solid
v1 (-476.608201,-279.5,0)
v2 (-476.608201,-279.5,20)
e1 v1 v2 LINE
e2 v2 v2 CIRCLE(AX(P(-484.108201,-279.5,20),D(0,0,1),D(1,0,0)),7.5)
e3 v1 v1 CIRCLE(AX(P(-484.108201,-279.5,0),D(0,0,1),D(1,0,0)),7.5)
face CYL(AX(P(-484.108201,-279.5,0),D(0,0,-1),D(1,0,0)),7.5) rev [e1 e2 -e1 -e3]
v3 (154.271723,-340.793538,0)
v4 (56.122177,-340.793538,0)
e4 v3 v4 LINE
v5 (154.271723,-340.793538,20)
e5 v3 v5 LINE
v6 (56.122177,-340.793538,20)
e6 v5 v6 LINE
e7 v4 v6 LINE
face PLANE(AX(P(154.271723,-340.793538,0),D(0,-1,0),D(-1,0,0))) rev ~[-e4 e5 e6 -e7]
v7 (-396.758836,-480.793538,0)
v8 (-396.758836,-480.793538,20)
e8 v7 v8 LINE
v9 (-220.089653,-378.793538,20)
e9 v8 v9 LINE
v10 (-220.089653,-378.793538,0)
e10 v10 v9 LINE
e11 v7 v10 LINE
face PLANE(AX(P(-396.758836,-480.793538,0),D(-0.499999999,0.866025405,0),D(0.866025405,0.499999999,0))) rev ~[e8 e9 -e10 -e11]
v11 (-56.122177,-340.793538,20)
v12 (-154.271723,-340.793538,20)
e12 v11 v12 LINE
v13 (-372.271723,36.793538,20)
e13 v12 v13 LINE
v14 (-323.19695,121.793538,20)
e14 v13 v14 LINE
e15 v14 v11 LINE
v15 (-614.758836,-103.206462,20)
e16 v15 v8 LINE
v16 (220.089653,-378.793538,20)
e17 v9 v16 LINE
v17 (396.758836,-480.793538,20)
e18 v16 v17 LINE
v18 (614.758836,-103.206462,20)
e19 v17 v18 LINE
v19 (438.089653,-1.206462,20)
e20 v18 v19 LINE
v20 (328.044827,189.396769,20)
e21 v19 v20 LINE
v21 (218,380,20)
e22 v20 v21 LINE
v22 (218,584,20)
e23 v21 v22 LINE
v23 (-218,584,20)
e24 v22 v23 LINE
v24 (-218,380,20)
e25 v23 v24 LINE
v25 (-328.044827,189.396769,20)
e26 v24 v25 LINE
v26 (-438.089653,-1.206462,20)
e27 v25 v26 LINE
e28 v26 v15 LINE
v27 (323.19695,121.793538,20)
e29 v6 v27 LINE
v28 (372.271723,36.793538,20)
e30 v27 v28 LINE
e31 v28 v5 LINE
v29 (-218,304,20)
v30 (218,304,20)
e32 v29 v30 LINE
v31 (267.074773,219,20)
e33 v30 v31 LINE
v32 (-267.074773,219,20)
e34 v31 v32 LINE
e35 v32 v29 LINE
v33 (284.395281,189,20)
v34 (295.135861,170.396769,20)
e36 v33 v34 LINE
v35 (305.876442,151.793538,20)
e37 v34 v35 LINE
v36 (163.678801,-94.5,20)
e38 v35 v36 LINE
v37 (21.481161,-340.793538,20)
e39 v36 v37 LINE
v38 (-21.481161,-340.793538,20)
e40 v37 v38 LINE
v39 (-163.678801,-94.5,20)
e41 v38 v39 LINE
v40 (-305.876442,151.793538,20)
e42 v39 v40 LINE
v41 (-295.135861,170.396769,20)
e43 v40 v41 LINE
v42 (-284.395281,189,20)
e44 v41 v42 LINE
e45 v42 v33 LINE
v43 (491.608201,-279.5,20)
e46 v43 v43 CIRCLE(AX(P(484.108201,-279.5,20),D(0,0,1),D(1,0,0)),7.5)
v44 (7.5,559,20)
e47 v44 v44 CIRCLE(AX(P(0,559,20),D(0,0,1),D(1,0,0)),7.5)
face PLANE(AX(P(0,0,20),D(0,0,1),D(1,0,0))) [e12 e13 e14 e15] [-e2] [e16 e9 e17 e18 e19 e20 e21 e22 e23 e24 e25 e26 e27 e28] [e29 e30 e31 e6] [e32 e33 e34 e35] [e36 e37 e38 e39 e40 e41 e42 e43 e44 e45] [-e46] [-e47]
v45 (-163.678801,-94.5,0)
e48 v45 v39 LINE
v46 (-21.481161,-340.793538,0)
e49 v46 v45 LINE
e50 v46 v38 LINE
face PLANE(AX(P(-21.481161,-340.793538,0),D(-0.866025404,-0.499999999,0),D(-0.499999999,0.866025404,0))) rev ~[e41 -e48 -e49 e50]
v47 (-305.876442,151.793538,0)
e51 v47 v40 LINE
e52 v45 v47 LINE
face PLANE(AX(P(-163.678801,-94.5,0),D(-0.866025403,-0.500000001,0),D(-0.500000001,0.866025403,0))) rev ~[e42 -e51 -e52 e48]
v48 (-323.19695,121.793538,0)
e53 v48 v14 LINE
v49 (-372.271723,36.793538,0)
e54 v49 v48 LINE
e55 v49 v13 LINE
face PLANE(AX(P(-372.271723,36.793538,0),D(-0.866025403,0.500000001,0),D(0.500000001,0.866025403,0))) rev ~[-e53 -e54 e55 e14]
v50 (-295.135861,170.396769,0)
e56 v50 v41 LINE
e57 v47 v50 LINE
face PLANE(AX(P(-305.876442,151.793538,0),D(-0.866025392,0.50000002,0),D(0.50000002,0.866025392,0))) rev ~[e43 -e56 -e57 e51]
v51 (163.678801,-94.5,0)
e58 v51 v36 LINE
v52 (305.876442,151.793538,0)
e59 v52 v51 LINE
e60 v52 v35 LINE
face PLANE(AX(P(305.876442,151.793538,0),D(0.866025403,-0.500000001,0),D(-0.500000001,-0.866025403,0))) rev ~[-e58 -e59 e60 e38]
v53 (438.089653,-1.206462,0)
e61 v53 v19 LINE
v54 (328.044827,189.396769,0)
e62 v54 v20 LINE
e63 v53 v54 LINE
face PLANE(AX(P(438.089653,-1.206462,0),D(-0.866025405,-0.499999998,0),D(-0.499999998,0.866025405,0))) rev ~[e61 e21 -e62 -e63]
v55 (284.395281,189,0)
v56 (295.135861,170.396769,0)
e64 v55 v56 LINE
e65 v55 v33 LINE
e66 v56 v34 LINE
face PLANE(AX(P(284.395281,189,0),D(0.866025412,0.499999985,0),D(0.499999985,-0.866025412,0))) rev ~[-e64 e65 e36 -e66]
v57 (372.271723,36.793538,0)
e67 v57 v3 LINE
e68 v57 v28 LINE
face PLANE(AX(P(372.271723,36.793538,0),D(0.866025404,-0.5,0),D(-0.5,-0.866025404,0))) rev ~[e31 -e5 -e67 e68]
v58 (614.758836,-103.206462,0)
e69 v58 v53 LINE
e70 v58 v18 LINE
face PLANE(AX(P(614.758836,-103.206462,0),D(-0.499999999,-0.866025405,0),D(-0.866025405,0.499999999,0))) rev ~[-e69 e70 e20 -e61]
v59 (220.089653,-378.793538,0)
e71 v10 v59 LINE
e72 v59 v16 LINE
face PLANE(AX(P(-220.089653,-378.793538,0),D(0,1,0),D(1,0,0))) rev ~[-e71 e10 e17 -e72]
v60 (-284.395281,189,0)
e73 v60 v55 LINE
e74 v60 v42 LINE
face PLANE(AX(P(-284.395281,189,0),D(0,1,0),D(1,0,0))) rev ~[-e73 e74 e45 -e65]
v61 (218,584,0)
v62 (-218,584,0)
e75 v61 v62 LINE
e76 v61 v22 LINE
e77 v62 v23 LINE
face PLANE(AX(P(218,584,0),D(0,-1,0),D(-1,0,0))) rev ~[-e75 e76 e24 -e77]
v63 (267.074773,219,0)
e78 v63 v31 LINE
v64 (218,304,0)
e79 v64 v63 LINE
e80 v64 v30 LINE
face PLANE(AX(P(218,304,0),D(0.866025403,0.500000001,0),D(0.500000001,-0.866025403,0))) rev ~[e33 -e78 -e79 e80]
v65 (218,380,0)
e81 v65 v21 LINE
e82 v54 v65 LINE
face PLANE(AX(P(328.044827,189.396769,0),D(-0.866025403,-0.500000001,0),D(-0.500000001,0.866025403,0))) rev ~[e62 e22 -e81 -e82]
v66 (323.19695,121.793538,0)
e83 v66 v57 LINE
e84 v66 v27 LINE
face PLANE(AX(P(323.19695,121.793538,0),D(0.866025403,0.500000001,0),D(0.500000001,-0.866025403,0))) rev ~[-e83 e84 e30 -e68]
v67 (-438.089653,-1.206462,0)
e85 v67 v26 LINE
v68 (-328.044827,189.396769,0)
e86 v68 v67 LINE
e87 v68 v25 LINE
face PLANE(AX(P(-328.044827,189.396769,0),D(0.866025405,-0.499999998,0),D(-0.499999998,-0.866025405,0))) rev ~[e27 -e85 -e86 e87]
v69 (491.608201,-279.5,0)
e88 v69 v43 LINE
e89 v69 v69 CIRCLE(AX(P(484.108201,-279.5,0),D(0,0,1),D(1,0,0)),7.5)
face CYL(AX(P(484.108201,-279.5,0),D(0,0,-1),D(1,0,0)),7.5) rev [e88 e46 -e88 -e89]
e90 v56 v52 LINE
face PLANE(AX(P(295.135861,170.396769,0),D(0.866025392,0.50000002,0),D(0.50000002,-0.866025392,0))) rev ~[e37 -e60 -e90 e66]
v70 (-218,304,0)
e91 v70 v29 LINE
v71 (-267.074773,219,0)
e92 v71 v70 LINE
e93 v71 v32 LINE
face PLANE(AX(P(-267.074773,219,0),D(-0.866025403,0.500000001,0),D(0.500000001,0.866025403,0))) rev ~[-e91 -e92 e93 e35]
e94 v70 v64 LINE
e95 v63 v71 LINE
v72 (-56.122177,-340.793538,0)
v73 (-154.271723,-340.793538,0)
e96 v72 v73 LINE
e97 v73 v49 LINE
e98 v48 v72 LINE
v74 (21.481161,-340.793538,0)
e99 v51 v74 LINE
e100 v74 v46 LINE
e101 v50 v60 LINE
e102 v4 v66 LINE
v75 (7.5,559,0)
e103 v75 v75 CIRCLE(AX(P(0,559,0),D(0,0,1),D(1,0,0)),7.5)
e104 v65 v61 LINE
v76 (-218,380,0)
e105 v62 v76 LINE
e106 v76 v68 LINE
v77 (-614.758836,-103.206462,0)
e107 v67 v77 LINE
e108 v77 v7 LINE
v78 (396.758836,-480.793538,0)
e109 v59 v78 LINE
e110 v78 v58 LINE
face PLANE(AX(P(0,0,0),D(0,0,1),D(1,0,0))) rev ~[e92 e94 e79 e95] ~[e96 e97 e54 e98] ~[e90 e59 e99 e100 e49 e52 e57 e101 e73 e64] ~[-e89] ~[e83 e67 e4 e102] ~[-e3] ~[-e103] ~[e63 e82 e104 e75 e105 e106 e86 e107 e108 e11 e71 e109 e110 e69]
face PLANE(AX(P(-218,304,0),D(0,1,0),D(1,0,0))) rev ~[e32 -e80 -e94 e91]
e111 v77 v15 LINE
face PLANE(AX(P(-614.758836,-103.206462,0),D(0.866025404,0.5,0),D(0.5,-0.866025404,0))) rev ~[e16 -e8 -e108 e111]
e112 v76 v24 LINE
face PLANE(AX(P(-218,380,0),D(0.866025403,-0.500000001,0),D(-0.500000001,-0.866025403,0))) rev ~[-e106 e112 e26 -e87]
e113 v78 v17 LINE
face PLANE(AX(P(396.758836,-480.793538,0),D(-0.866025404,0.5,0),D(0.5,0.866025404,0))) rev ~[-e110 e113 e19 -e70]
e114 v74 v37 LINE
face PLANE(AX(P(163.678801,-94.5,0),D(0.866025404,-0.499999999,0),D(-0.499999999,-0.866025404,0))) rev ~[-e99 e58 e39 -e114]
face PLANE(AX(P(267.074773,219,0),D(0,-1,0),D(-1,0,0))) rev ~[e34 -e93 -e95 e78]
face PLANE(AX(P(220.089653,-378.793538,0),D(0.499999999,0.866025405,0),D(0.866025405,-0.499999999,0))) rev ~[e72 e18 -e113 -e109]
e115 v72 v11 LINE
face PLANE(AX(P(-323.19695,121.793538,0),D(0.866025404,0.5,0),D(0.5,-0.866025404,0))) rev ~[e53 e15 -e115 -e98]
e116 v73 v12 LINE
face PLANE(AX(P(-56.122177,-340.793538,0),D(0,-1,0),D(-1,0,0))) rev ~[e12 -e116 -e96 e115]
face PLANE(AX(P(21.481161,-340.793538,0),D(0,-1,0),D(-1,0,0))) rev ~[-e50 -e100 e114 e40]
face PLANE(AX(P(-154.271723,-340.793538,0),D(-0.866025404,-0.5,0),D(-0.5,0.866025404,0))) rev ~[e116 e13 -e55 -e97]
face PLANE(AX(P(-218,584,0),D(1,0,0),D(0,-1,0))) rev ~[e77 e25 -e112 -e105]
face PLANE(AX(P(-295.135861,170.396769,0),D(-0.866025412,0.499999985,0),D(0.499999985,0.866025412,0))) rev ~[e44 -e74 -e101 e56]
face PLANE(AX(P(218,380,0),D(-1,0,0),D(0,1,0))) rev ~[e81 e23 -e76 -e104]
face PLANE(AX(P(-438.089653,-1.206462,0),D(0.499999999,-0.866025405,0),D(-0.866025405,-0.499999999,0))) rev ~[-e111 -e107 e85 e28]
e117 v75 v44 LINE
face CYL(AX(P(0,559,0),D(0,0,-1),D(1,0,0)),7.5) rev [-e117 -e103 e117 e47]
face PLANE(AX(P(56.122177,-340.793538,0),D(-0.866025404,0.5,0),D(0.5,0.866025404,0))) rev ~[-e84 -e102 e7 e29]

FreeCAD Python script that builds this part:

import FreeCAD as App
import Part
import Sketcher
Q = App.Units.Quantity

doc = App.newDocument("Part")
body = doc.addObject("PartDesign::Body", "Body")

sketch1 = doc.addObject("Sketcher::SketchObject", "Sketch")
body.addObject(sketch1)
sketch1.AttachmentSupport = (doc.XY_Plane, [""])
sketch1.MapMode = "FlatFace"
sketch1.addGeometry([
    Part.LineSegment(App.Vector(218, 380, 0), App.Vector(218, 584, 0)),
    Part.LineSegment(App.Vector(218, 584, 0), App.Vector(-218, 584, 0)),
    Part.LineSegment(App.Vector(-218, 584, 0), App.Vector(-218, 380, 0)),
    Part.LineSegment(App.Vector(-218, 380, 0), App.Vector(-328.044827, 189.396769, 0)),
    Part.LineSegment(App.Vector(-328.044827, 189.396769, 0), App.Vector(-438.089653, -1.206462, 0)),
    Part.LineSegment(App.Vector(-438.089653, -1.206462, 0), App.Vector(-614.758836, -103.206462, 0)),
    Part.LineSegment(App.Vector(-614.758836, -103.206462, 0), App.Vector(-396.758836, -480.793538, 0)),
    Part.LineSegment(App.Vector(-396.758836, -480.793538, 0), App.Vector(-220.089653, -378.793538, 0)),
    Part.LineSegment(App.Vector(-220.089653, -378.793538, 0), App.Vector(220.089653, -378.793538, 0)),
    Part.LineSegment(App.Vector(220.089653, -378.793538, 0), App.Vector(396.758836, -480.793538, 0)),
    Part.LineSegment(App.Vector(396.758836, -480.793538, 0), App.Vector(614.758836, -103.206462, 0)),
    Part.LineSegment(App.Vector(614.758836, -103.206462, 0), App.Vector(438.089653, -1.206462, 0)),
    Part.LineSegment(App.Vector(438.089653, -1.206462, 0), App.Vector(328.044827, 189.396769, 0)),
    Part.LineSegment(App.Vector(328.044827, 189.396769, 0), App.Vector(218, 380, 0)),
    Part.Circle(App.Vector(-484.108201, -279.5, 0), App.Vector(0, 0, 1), 7.5),
    Part.LineSegment(App.Vector(-154.271723, -340.793538, 0), App.Vector(-372.271723, 36.793538, 0)),
    Part.LineSegment(App.Vector(-372.271723, 36.793538, 0), App.Vector(-323.19695, 121.793538, 0)),
    Part.LineSegment(App.Vector(-323.19695, 121.793538, 0), App.Vector(-56.122177, -340.793538, 0)),
    Part.LineSegment(App.Vector(-56.122177, -340.793538, 0), App.Vector(-154.271723, -340.793538, 0)),
    Part.LineSegment(App.Vector(-305.876442, 151.793538, 0), App.Vector(-295.135861, 170.396769, 0)),
    Part.LineSegment(App.Vector(-295.135861, 170.396769, 0), App.Vector(-284.395281, 189, 0)),
    Part.LineSegment(App.Vector(-284.395281, 189, 0), App.Vector(284.395281, 189, 0)),
    Part.LineSegment(App.Vector(284.395281, 189, 0), App.Vector(295.135861, 170.396769, 0)),
    Part.LineSegment(App.Vector(295.135861, 170.396769, 0), App.Vector(305.876442, 151.793538, 0)),
    Part.LineSegment(App.Vector(305.876442, 151.793538, 0), App.Vector(163.678801, -94.5, 0)),
    Part.LineSegment(App.Vector(163.678801, -94.5, 0), App.Vector(21.481161, -340.793538, 0)),
    Part.LineSegment(App.Vector(21.481161, -340.793538, 0), App.Vector(-21.481161, -340.793538, 0)),
    Part.LineSegment(App.Vector(-21.481161, -340.793538, 0), App.Vector(-163.678801, -94.5, 0)),
    Part.LineSegment(App.Vector(-163.678801, -94.5, 0), App.Vector(-305.876442, 151.793538, 0)),
    Part.Circle(App.Vector(484.108201, -279.5, 0), App.Vector(0, 0, 1), 7.5),
    Part.LineSegment(App.Vector(372.271723, 36.793538, 0), App.Vector(154.271723, -340.793538, 0)),
    Part.LineSegment(App.Vector(154.271723, -340.793538, 0), App.Vector(56.122177, -340.793538, 0)),
    Part.LineSegment(App.Vector(56.122177, -340.793538, 0), App.Vector(323.19695, 121.793538, 0)),
    Part.LineSegment(App.Vector(323.19695, 121.793538, 0), App.Vector(372.271723, 36.793538, 0)),
    Part.LineSegment(App.Vector(-267.074773, 219, 0), App.Vector(-218, 304, 0)),
    Part.LineSegment(App.Vector(-218, 304, 0), App.Vector(218, 304, 0)),
    Part.LineSegment(App.Vector(218, 304, 0), App.Vector(267.074773, 219, 0)),
    Part.LineSegment(App.Vector(267.074773, 219, 0), App.Vector(-267.074773, 219, 0)),
    Part.Circle(App.Vector(0, 559, 0), App.Vector(0, 0, 1), 7.5),
], False)
sketch1.addConstraint([
    Sketcher.Constraint("Coincident", 0, 2, 1, 1),
    Sketcher.Constraint("Coincident", 1, 2, 2, 1),
    Sketcher.Constraint("Coincident", 2, 2, 3, 1),
    Sketcher.Constraint("Coincident", 3, 2, 4, 1),
    Sketcher.Constraint("Coincident", 4, 2, 5, 1),
    Sketcher.Constraint("Coincident", 5, 2, 6, 1),
    Sketcher.Constraint("Coincident", 6, 2, 7, 1),
    Sketcher.Constraint("Coincident", 7, 2, 8, 1),
    Sketcher.Constraint("Coincident", 8, 2, 9, 1),
    Sketcher.Constraint("Coincident", 9, 2, 10, 1),
    Sketcher.Constraint("Coincident", 10, 2, 11, 1),
    Sketcher.Constraint("Coincident", 11, 2, 12, 1),
    Sketcher.Constraint("Coincident", 12, 2, 13, 1),
    Sketcher.Constraint("Coincident", 13, 2, 0, 1),
    Sketcher.Constraint("Coincident", 15, 2, 16, 1),
    Sketcher.Constraint("Coincident", 16, 2, 17, 1),
    Sketcher.Constraint("Coincident", 17, 2, 18, 1),
    Sketcher.Constraint("Coincident", 18, 2, 15, 1),
    Sketcher.Constraint("Coincident", 19, 2, 20, 1),
    Sketcher.Constraint("Coincident", 20, 2, 21, 1),
    Sketcher.Constraint("Coincident", 21, 2, 22, 1),
    Sketcher.Constraint("Coincident", 22, 2, 23, 1),
    Sketcher.Constraint("Coincident", 23, 2, 24, 1),
    Sketcher.Constraint("Coincident", 24, 2, 25, 1),
    Sketcher.Constraint("Coincident", 25, 2, 26, 1),
    Sketcher.Constraint("Coincident", 26, 2, 27, 1),
    Sketcher.Constraint("Coincident", 27, 2, 28, 1),
    Sketcher.Constraint("Coincident", 28, 2, 19, 1),
    Sketcher.Constraint("Coincident", 30, 2, 31, 1),
    Sketcher.Constraint("Coincident", 31, 2, 32, 1),
    Sketcher.Constraint("Coincident", 32, 2, 33, 1),
    Sketcher.Constraint("Coincident", 33, 2, 30, 1),
    Sketcher.Constraint("Coincident", 34, 2, 35, 1),
    Sketcher.Constraint("Coincident", 35, 2, 36, 1),
    Sketcher.Constraint("Coincident", 36, 2, 37, 1),
    Sketcher.Constraint("Coincident", 37, 2, 34, 1),
    Sketcher.Constraint("Vertical", 0),
    Sketcher.Constraint("Horizontal", 1),
    Sketcher.Constraint("Vertical", 2),
    Sketcher.Constraint("Horizontal", 8),
    Sketcher.Constraint("Horizontal", 18),
    Sketcher.Constraint("Horizontal", 21),
    Sketcher.Constraint("Horizontal", 26),
    Sketcher.Constraint("Horizontal", 31),
    Sketcher.Constraint("Horizontal", 35),
    Sketcher.Constraint("Horizontal", 37),
    Sketcher.Constraint("Equal", 14, 29),
    Sketcher.Constraint("Equal", 29, 38),
    Sketcher.Constraint("Symmetric", 14, 3, 29, 3, -2),
    Sketcher.Constraint("Symmetric", 6, 2, 9, 2, -2),
    Sketcher.Constraint("Symmetric", 5, 2, 10, 2, -2),
    Sketcher.Constraint("Symmetric", 4, 2, 11, 2, -2),
    Sketcher.Constraint("Symmetric", 3, 2, 12, 2, -2),
    Sketcher.Constraint("Symmetric", 2, 2, 13, 2, -2),
    Sketcher.Constraint("Symmetric", 19, 2, 22, 2, -2),
    Sketcher.Constraint("Symmetric", 24, 2, 27, 2, -2),
    Sketcher.Constraint("Symmetric", 23, 2, 28, 2, -2),
    Sketcher.Constraint("Symmetric", 18, 2, 30, 2, -2),
    Sketcher.Constraint("Symmetric", 16, 2, 32, 2, -2),
    Sketcher.Constraint("Symmetric", 15, 2, 33, 2, -2),
    Sketcher.Constraint("PointOnObject", 38, 3, -2),
    Sketcher.Constraint("Parallel", 3, 4),
    Sketcher.Constraint("Perpendicular", 5, 6),
    Sketcher.Constraint("Perpendicular", 6, 7),
    Sketcher.Constraint("Perpendicular", 4, 9),
    Sketcher.Constraint("Perpendicular", 9, 10),
    Sketcher.Constraint("Parallel", 13, 15),
    Sketcher.Constraint("Perpendicular", 11, 16),
    Sketcher.Constraint("Parallel", 15, 17),
    Sketcher.Constraint("Parallel", 16, 19),
    Sketcher.Constraint("Parallel", 19, 20),
    Sketcher.Constraint("Parallel", 17, 22),
    Sketcher.Constraint("Parallel", 20, 24),
    Sketcher.Constraint("Parallel", 24, 25),
    Sketcher.Constraint("Parallel", 23, 27),
    Sketcher.Constraint("Parallel", 30, 32),
    Sketcher.Constraint("Parallel", 32, 34),
    Sketcher.Constraint("Parallel", 33, 36),
    Sketcher.Constraint("Horizontal", 18, 2, 25, 2),
    Sketcher.Constraint("Vertical", 2, 2, 34, 2),
    Sketcher.Constraint("Vertical", 13, 2, 35, 2),
    Sketcher.Constraint("Equal", 3, 4),
    Sketcher.Constraint("Equal", 5, 7),
    Sketcher.Constraint("Equal", 10, 15),
    Sketcher.Constraint("Equal", 19, 20),
    Sketcher.Constraint("Equal", 24, 25),
    Sketcher.Constraint("Equal", 33, 34),
    Sketcher.Constraint("Diameter", 14, Q("15 mm")),
    Sketcher.Constraint("DistanceX", 1, 2, 1, 1, Q("436 mm")),
    Sketcher.Constraint("DistanceY", 0, 1, 0, 2, Q("204 mm")),
    Sketcher.Constraint("Angle", 3, Q("-120 deg")),
    Sketcher.Constraint("Distance", 5, Q("204.000001 mm")),
    Sketcher.Constraint("Distance", 6, Q("436 mm")),
    Sketcher.Constraint("DistanceY", -1, 1, 38, 3, Q("559 mm")),
    Sketcher.Constraint("DistanceY", -1, 1, 0, 2, Q("584 mm")),
    Sketcher.Constraint("DistanceY", -1, 1, 20, 2, Q("189 mm")),
    Sketcher.Constraint("DistanceY", -1, 1, 34, 2, Q("304 mm")),
    Sketcher.Constraint("DistanceY", -1, 1, 36, 2, Q("219 mm")),
    Sketcher.Constraint("DistanceY", 4, 2, 15, 2, Q("38 mm")),
    Sketcher.Constraint("DistanceY", 19, 2, 3, 2, Q("19 mm")),
    Sketcher.Constraint("DistanceY", 14, 3, -1, 1, Q("279.5 mm")),
    Sketcher.Constraint("DistanceY", 24, 2, -1, 1, Q("94.5 mm")),
    Sketcher.Constraint("DistanceX", 21, 1, 21, 2, Q("568.790562 mm")),
    Sketcher.Constraint("DistanceX", 14, 3, -1, 1, Q("484.108201 mm")),
    Sketcher.Constraint("DistanceX", 17, 2, 30, 2, Q("210.3939 mm")),
])
pad1 = doc.addObject("PartDesign::Pad", "Pad")
body.addObject(pad1)
pad1.Profile = sketch1
pad1.Length = 20

doc.recompute()
